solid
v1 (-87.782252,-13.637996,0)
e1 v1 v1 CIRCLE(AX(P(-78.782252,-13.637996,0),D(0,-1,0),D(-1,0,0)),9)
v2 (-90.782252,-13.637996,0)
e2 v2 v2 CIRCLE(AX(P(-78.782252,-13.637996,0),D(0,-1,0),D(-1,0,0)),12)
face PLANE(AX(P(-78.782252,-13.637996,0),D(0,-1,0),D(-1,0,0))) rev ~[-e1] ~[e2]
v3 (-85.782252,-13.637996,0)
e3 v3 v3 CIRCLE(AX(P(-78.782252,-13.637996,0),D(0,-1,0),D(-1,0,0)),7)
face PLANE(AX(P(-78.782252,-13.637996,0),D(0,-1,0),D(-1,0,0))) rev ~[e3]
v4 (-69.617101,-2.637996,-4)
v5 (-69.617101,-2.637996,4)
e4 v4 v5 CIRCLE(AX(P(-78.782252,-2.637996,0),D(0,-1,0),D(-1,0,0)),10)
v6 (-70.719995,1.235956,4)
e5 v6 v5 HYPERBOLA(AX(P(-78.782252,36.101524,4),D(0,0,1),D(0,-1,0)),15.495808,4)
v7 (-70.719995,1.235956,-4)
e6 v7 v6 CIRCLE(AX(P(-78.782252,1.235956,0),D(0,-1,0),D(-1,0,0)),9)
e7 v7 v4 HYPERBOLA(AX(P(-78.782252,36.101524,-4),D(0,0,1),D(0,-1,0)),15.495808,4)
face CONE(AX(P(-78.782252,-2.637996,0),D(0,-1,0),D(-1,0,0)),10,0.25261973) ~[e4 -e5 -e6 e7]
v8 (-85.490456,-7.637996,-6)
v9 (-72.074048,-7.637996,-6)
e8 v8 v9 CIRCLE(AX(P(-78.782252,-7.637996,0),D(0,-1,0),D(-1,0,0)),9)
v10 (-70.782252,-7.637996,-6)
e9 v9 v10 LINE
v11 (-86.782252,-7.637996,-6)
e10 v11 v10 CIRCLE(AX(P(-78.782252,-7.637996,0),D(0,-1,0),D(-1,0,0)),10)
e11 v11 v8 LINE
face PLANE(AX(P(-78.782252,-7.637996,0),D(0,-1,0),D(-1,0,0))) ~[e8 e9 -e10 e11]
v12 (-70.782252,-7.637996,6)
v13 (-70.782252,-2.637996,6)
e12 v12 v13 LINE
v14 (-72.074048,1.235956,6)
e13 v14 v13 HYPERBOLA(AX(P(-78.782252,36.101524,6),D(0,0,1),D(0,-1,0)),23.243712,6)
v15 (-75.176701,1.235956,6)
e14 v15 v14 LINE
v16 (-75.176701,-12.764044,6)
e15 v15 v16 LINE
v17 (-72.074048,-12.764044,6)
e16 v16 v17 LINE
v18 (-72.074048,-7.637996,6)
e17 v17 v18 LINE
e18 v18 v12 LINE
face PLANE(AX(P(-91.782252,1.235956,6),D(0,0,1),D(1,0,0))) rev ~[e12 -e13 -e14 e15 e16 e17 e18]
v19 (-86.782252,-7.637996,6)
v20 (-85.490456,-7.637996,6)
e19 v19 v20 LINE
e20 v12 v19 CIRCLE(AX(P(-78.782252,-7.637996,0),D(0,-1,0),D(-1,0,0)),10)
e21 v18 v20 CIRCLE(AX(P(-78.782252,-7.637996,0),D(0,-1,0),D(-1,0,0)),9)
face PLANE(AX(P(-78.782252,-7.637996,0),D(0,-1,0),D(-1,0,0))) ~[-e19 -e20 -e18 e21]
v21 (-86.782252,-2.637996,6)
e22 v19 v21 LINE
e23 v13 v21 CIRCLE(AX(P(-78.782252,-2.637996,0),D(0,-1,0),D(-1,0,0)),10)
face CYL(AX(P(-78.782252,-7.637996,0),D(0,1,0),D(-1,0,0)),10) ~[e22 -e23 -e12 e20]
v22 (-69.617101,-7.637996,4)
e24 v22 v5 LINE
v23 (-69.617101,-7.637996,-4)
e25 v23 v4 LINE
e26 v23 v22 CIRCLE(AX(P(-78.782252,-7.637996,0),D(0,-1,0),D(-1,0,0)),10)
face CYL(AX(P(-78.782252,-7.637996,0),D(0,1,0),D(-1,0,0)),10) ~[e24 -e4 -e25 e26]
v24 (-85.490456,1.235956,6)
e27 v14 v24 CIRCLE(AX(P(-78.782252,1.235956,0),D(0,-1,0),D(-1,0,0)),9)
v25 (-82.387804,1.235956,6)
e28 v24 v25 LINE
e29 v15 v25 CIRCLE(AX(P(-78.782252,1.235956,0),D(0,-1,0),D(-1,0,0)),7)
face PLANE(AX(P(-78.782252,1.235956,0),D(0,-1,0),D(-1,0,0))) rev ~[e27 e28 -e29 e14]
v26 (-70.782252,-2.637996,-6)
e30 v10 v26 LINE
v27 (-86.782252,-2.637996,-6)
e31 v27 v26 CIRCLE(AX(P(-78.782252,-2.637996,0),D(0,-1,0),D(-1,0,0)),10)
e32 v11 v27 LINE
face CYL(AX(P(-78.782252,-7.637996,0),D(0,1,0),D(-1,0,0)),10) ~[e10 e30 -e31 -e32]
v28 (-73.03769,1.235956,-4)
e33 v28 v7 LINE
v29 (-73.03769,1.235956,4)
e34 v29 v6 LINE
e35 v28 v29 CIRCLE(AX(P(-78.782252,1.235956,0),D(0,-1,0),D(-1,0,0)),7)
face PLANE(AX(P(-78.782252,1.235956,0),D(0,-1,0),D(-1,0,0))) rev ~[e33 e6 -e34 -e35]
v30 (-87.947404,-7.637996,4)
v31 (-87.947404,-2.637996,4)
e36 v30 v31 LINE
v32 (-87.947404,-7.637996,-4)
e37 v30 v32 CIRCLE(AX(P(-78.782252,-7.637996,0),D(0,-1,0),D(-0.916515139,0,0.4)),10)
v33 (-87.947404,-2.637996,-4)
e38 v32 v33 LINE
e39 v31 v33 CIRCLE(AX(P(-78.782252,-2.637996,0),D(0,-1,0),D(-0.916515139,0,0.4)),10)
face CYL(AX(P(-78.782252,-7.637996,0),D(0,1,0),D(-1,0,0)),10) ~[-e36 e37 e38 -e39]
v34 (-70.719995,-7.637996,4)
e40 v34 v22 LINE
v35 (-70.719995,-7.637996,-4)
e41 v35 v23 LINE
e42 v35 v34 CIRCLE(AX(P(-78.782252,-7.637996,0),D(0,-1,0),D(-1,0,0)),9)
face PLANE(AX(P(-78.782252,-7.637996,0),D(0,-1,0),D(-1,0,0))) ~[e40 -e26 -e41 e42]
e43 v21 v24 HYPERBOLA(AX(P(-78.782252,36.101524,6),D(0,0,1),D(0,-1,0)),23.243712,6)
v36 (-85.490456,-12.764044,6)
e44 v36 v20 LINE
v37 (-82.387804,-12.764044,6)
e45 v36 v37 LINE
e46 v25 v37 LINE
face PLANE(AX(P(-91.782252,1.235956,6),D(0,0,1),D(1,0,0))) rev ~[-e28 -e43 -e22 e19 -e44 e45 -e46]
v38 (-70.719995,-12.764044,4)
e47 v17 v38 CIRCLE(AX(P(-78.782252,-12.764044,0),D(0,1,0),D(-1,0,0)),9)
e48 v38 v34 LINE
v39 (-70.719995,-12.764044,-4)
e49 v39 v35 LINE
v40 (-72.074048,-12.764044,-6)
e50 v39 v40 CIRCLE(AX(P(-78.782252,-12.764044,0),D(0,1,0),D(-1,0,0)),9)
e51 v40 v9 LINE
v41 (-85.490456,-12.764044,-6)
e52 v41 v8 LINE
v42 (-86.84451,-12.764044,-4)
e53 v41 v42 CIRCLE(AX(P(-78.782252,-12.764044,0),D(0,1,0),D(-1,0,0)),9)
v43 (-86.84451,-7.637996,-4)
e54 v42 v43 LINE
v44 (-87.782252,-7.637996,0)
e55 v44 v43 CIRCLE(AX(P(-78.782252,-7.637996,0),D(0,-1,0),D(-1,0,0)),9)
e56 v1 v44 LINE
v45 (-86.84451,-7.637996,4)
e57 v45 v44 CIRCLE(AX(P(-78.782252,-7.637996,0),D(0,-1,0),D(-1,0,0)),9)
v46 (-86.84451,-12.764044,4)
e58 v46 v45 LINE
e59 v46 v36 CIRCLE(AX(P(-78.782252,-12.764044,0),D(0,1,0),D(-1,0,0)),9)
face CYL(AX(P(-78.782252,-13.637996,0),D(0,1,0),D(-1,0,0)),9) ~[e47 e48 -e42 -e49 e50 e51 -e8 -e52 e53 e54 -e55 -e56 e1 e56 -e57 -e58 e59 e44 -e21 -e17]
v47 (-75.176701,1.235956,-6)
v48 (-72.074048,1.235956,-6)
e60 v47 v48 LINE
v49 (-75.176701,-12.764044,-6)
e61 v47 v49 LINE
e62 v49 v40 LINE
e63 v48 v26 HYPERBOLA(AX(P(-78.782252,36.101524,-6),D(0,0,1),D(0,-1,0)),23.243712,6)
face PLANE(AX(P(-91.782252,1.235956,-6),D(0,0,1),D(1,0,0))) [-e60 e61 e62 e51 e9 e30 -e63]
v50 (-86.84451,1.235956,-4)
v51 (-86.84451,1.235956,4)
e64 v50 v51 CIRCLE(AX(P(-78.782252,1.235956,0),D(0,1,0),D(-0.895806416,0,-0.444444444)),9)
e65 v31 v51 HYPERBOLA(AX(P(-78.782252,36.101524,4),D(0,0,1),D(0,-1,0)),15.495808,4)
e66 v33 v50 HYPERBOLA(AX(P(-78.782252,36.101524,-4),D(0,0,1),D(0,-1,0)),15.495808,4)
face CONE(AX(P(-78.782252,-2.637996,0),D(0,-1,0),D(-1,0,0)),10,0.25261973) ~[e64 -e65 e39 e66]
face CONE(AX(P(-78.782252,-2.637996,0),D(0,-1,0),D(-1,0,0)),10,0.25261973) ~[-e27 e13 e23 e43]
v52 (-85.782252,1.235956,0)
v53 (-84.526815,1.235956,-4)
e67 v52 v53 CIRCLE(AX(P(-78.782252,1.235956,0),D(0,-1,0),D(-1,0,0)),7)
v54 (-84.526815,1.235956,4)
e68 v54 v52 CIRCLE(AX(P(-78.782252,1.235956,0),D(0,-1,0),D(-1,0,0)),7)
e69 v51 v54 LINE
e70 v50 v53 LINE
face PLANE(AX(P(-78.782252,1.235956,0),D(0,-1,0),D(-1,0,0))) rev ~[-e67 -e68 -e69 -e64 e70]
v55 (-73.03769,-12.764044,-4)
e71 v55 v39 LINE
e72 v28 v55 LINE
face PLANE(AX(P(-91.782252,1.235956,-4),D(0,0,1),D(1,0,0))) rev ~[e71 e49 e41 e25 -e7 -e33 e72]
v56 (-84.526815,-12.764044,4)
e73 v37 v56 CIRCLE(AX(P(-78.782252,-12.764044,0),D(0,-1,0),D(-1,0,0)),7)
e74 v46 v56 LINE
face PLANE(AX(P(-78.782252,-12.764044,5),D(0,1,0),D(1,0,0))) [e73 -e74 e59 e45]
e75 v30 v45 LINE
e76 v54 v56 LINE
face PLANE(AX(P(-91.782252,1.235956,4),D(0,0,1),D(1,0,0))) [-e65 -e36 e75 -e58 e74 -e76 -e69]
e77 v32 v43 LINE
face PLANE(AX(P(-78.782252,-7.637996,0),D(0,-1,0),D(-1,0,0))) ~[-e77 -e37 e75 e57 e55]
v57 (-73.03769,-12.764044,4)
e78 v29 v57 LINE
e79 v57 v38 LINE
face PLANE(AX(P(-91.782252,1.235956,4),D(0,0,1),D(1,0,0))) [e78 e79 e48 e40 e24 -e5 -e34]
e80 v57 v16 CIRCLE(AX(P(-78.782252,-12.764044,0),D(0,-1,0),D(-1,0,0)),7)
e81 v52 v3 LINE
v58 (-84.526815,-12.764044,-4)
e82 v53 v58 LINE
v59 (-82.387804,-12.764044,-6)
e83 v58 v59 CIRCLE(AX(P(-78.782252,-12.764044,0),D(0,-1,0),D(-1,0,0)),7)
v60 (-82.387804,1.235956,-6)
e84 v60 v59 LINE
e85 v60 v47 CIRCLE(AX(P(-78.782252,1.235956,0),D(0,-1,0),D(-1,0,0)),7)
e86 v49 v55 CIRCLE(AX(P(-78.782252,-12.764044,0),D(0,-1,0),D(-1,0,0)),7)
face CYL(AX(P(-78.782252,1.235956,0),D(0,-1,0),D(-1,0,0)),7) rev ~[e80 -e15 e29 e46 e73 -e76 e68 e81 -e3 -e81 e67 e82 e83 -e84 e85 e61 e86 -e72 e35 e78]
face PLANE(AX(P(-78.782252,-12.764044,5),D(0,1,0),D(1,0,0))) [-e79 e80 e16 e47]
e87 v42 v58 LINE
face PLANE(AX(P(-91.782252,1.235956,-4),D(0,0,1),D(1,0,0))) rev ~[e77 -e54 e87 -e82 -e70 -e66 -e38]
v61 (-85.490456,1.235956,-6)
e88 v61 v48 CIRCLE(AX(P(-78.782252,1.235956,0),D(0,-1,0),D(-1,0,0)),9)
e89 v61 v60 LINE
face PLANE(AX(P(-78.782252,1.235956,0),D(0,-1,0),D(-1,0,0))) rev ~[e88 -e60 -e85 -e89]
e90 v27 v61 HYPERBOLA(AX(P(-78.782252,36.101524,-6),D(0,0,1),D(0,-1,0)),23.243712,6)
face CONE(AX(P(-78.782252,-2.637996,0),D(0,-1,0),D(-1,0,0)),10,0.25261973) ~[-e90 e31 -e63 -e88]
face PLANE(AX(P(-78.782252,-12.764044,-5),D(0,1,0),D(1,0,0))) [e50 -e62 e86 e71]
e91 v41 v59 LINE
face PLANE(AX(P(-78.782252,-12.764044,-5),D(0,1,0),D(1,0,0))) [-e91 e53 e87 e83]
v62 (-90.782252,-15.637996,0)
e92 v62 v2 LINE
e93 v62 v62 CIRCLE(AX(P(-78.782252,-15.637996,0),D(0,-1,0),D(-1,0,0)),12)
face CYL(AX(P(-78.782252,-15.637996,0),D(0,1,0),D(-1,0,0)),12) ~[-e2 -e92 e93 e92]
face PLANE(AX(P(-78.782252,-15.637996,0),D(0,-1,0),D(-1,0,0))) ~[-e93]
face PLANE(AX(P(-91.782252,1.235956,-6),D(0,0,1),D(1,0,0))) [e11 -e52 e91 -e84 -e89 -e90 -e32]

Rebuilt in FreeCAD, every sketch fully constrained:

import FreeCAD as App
import Part
import Sketcher
from FreeCAD import Vector
Q = App.Units.Quantity


def add_polygon(sketch, points):
    """Adds a closed chain of lines whose ends are joined by coincident constraints."""
    first, n = sketch.GeometryCount, len(points)
    for a, b in zip(points, points[1:] + points[:1]):
        sketch.addGeometry(Part.LineSegment(App.Vector(*a, 0), App.Vector(*b, 0)), False)
    for i in range(n):
        sketch.addConstraint(Sketcher.Constraint("Coincident", first + i, 2, first + (i + 1) % n, 1))

doc = App.newDocument("Part")
body = doc.addObject("PartDesign::Body", "Body")

sketch1 = body.newObject("Sketcher::SketchObject", "Sketch")
sketch1.AttachmentSupport = (doc.getObject("XY_Plane"), [""])
sketch1.MapMode = "FlatFace"
add_polygon(sketch1, [(-90.8, -15.6), (-78.8, -15.6), (-78.8, -13.6), (-85.8, -13.6), (-85.8, 1.2), (-87.8, 1.2), (-88.8, -2.6), (-88.8, -7.6), (-87.8, -7.6), (-87.8, -13.6), (-90.8, -13.6)])
sketch1.addGeometry(Part.LineSegment(Vector(-78.8, 1.2, 0), Vector(-78.8, -15.6, 0)), True)
sketch1.addConstraint([
    Sketcher.Constraint("Horizontal", 0),
    Sketcher.Constraint("Vertical", 1),
    Sketcher.Constraint("Horizontal", 2),
    Sketcher.Constraint("Vertical", 3),
    Sketcher.Constraint("Horizontal", 4),
    Sketcher.Constraint("Vertical", 6),
    Sketcher.Constraint("Horizontal", 7),
    Sketcher.Constraint("Vertical", 8),
    Sketcher.Constraint("Horizontal", 9),
    Sketcher.Constraint("Vertical", 10),
    Sketcher.Constraint("Vertical", 11),
    Sketcher.Constraint("Coincident", 11, 2, 0, 2),
    Sketcher.Constraint("Horizontal", 2, 2, 8, 2),
    Sketcher.Constraint("Horizontal", 4, 2, 11, 1),
    Sketcher.Constraint("Vertical", 4, 2, 7, 2),
    Sketcher.Constraint("Equal", 4, 1),
    Sketcher.Constraint("DistanceX", 0, 1, 0, 2, Q("12 mm")),
    Sketcher.Constraint("DistanceX", 2, 2, 2, 1, Q("7 mm")),
    Sketcher.Constraint("DistanceX", 4, 2, 4, 1, Q("2 mm")),
    Sketcher.Constraint("DistanceX", 7, 1, 7, 2, Q("1 mm")),
    Sketcher.Constraint("DistanceY", 6, 2, 6, 1, Q("5 mm")),
    Sketcher.Constraint("DistanceY", 8, 2, 8, 1, Q("6 mm")),
    Sketcher.Constraint("DistanceY", 3, 1, 3, 2, Q("14.873952 mm")),
    Sketcher.Constraint("DistanceX", 0, 2, -1, 1, Q("78.782252 mm")),
    Sketcher.Constraint("DistanceY", 0, 2, -1, 1, Q("15.637996 mm")),
])
revolution = body.newObject("PartDesign::Revolution", "Revolution")
revolution.Profile = sketch1
revolution.ReferenceAxis = (sketch1, ["Axis0"])
revolution.Angle = 360

sketch2 = body.newObject("Sketcher::SketchObject", "Sketch001")
sketch2.AttachmentSupport = (doc.getObject("XZ_Plane"), [""])
sketch2.MapMode = "FlatFace"
sketch2.AttachmentOffset = App.Placement(Vector(0, 0, -1.235956), App.Rotation())
add_polygon(sketch2, [(-91.8, 4), (-91.8, 6), (-65.8, 6), (-65.8, 4)])
add_polygon(sketch2, [(-91.8, -6), (-91.8, -4), (-65.8, -4), (-65.8, -6)])
sketch2.addConstraint([
    Sketcher.Constraint("Vertical", 0),
    Sketcher.Constraint("Horizontal", 1),
    Sketcher.Constraint("Vertical", 2),
    Sketcher.Constraint("Horizontal", 3),
    Sketcher.Constraint("Vertical", 4),
    Sketcher.Constraint("Horizontal", 5),
    Sketcher.Constraint("Vertical", 6),
    Sketcher.Constraint("Horizontal", 7),
    Sketcher.Constraint("Symmetric", 3, 2, 4, 2, -1),
    Sketcher.Constraint("Symmetric", 1, 2, 6, 2, -1),
    Sketcher.Constraint("DistanceX", 1, 1, 1, 2, Q("26 mm")),
    Sketcher.Constraint("DistanceY", 0, 1, 0, 2, Q("2 mm")),
    Sketcher.Constraint("DistanceY", -1, 1, 0, 2, Q("6 mm")),
    Sketcher.Constraint("DistanceX", 0, 2, -1, 1, Q("91.782252 mm")),
])
pocket1 = body.newObject("PartDesign::Pocket", "Pocket")
pocket1.Profile = sketch2
pocket1.Length = 14
pocket1.Reversed = True

doc.recompute()
